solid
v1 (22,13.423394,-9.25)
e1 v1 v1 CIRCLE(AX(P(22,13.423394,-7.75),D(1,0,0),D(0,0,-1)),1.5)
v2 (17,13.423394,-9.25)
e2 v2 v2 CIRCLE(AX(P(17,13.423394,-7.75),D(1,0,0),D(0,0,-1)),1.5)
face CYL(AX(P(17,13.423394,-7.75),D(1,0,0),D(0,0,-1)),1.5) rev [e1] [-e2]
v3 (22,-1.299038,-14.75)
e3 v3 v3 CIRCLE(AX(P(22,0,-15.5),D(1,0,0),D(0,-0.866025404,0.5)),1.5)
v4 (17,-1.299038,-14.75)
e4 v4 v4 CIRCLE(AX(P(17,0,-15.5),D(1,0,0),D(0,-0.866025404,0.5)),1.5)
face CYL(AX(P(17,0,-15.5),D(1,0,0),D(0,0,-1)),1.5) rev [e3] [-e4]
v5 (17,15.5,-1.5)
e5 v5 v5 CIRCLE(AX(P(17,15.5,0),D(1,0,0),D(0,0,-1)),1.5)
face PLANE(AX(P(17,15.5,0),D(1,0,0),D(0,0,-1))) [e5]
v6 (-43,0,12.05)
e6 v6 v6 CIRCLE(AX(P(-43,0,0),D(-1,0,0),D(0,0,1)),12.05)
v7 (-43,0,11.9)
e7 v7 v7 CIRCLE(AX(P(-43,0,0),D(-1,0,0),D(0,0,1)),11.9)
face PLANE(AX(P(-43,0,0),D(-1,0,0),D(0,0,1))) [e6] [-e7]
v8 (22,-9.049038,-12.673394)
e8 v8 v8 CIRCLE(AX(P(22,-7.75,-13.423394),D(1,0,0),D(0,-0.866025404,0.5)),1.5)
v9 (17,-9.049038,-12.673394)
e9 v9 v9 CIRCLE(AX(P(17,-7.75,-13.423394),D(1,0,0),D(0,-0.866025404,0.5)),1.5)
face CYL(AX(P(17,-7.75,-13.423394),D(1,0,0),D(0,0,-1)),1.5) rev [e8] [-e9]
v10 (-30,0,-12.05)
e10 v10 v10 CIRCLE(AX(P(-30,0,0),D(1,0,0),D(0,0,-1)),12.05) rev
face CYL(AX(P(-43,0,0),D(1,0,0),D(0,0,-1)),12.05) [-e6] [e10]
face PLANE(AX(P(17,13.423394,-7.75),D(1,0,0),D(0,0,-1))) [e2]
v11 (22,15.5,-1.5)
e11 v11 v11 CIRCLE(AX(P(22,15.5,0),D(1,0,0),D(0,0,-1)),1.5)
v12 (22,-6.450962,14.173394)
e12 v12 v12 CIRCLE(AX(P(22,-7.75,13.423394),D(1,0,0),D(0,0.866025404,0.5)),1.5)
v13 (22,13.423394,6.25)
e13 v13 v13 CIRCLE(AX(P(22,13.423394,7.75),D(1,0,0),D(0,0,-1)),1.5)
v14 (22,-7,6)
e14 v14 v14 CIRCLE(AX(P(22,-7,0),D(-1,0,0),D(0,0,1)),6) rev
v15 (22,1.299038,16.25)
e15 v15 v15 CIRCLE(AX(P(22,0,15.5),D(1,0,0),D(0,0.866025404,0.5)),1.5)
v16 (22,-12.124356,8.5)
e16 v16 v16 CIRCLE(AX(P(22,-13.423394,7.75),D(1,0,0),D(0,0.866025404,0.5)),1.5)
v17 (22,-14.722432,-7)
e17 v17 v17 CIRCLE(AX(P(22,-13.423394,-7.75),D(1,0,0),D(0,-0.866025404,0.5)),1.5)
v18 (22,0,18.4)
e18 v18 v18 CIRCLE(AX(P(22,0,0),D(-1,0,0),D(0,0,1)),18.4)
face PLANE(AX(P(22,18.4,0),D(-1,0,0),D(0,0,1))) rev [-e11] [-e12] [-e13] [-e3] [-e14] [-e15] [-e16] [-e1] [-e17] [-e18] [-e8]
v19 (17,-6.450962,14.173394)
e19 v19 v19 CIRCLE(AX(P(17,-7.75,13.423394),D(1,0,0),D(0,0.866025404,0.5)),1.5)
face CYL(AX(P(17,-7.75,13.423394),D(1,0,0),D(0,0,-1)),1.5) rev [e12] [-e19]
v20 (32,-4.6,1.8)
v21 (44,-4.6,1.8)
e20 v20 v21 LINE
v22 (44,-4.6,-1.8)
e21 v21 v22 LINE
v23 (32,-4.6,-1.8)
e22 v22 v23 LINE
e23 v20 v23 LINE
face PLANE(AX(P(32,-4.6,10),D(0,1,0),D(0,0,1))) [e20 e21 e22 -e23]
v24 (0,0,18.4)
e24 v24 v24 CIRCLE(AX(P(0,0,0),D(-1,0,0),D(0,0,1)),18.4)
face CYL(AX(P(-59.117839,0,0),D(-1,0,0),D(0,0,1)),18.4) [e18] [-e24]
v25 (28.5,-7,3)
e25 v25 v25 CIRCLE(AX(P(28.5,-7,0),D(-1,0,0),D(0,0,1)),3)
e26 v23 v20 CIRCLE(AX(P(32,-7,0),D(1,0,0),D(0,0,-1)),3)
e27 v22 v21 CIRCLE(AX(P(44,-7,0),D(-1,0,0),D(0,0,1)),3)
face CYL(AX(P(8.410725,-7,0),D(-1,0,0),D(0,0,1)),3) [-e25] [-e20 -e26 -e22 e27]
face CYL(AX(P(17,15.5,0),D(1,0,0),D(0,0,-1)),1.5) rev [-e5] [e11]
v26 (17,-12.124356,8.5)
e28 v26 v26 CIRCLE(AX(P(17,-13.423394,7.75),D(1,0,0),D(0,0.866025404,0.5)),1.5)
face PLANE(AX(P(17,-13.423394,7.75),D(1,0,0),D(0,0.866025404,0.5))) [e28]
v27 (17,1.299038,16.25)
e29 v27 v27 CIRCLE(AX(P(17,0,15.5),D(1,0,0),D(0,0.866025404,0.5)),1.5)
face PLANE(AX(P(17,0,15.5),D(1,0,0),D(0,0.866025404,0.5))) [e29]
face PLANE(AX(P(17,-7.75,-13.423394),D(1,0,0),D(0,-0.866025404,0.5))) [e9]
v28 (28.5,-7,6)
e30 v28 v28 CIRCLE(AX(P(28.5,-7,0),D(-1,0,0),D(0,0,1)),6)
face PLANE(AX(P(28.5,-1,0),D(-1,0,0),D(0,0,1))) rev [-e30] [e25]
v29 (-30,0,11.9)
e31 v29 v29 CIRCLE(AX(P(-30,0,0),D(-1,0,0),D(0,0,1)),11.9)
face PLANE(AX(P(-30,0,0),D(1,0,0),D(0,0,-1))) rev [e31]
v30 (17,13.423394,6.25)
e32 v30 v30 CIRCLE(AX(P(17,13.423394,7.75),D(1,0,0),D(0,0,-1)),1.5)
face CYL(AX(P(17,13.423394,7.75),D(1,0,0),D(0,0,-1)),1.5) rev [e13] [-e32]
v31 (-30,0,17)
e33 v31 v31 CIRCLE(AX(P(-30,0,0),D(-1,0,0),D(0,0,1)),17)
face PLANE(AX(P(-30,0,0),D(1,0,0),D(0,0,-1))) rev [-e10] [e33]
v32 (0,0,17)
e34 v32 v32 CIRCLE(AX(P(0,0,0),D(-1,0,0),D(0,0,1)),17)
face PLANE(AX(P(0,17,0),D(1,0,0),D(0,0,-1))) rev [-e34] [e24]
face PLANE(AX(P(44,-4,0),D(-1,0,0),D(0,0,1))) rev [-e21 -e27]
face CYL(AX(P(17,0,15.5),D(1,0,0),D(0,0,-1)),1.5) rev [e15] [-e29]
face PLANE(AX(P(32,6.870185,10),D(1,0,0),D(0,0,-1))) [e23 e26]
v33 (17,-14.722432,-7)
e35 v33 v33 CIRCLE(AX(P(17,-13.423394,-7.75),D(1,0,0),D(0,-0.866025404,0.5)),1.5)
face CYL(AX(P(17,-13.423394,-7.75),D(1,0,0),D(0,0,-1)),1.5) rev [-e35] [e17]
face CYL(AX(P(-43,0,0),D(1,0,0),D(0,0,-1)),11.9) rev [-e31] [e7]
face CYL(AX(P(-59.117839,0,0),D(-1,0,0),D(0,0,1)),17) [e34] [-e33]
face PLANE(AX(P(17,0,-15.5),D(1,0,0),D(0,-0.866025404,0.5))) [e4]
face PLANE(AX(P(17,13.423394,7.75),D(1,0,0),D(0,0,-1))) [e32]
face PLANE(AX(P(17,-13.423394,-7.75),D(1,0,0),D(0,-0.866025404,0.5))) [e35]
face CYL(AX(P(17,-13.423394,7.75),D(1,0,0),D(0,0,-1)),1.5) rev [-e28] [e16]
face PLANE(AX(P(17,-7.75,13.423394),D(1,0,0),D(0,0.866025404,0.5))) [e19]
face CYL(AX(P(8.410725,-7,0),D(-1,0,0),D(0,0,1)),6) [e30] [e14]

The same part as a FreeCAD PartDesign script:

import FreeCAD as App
import Part
import Sketcher


def add_polygon(sketch, points):
    """Adds a closed chain of lines whose ends are joined by coincident constraints."""
    first, n = sketch.GeometryCount, len(points)
    for a, b in zip(points, points[1:] + points[:1]):
        sketch.addGeometry(Part.LineSegment(App.Vector(*a, 0), App.Vector(*b, 0)), False)
    for i in range(n):
        sketch.addConstraint(Sketcher.Constraint("Coincident", first + i, 2, first + (i + 1) % n, 1))

doc = App.newDocument("Part")
body = doc.addObject("PartDesign::Body", "Body")

# Sketch on XY plane
sketch1 = body.newObject("Sketcher::SketchObject", "Sketch")
sketch1.AttachmentSupport = (doc.getObject("XY_Plane"), [""])
sketch1.MapMode = "FlatFace"
add_polygon(sketch1, [(-30, 17), (-30, 0), (22, 0), (22, 18.4), (0, 18.4), (0, 17)])  # lines 0-5
sketch1.addConstraint([
    Sketcher.Constraint("Vertical", 0),
    Sketcher.Constraint("Horizontal", 1),
    Sketcher.Constraint("Vertical", 2),
    Sketcher.Constraint("Horizontal", 3),
    Sketcher.Constraint("Vertical", 4),
    Sketcher.Constraint("Horizontal", 5),
    Sketcher.Constraint("PointOnObject", 0, 2, -1),
    Sketcher.Constraint("PointOnObject", 3, 2, -2),
    Sketcher.Constraint("DistanceX", 1, 1, 1, 2, 52.0),
    Sketcher.Constraint("DistanceX", 3, 2, 3, 1, 22.0),
    Sketcher.Constraint("DistanceY", 0, 2, 0, 1, 17.0),
    Sketcher.Constraint("DistanceY", 2, 1, 2, 2, 18.4),
])
revolution = body.newObject("PartDesign::Revolution", "Revolution")
revolution.Profile = sketch1
revolution.ReferenceAxis = (sketch1, ["H_Axis"])
revolution.Angle = 360

# Sketch on XY plane
sketch2 = body.newObject("Sketcher::SketchObject", "Sketch001")
sketch2.AttachmentSupport = (doc.getObject("XY_Plane"), [""])
sketch2.MapMode = "FlatFace"
add_polygon(sketch2, [(28.5, -1), (22, -1), (22, -7), (44, -7), (44, -4), (28.5, -4)])  # lines 0-5
sketch2.addGeometry(Part.LineSegment(App.Vector(22, -7, 0), App.Vector(44, -7, 0)), True)  # axis
sketch2.addConstraint([
    Sketcher.Constraint("Horizontal", 0),
    Sketcher.Constraint("Vertical", 1),
    Sketcher.Constraint("Horizontal", 2),
    Sketcher.Constraint("Vertical", 3),
    Sketcher.Constraint("Horizontal", 4),
    Sketcher.Constraint("Vertical", 5),
    Sketcher.Constraint("Horizontal", 6),
    Sketcher.Constraint("Coincident", 6, 1, 1, 2),
    Sketcher.Constraint("Vertical", 3, 2, 6, 2),
    Sketcher.Constraint("Equal", 3, 5),
    Sketcher.Constraint("DistanceX", 2, 1, 2, 2, 22.0),
    Sketcher.Constraint("DistanceY", 1, 2, 1, 1, 6.0),
    Sketcher.Constraint("DistanceX", 0, 2, 0, 1, 6.5),
    Sketcher.Constraint("DistanceX", -1, 1, 0, 2, 22.0),
    Sketcher.Constraint("DistanceY", 0, 2, -1, 1, 1.0),
])
revolution2 = body.newObject("PartDesign::Revolution", "Revolution001")
revolution2.Profile = sketch2
revolution2.ReferenceAxis = (sketch2, ["Axis0"])
revolution2.Angle = 360

# Sketch on XY plane
sketch3 = body.newObject("Sketcher::SketchObject", "Sketch002")
sketch3.AttachmentSupport = (doc.getObject("XY_Plane"), [""])
sketch3.MapMode = "FlatFace"
add_polygon(sketch3, [(32, 7), (32, -5), (51, -5), (51, 7)])  # lines 0-3
sketch3.addConstraint([
    Sketcher.Constraint("Vertical", 0),
    Sketcher.Constraint("Horizontal", 1),
    Sketcher.Constraint("Vertical", 2),
    Sketcher.Constraint("Horizontal", 3),
    Sketcher.Constraint("DistanceX", -1, 1, 0, 2, 32.0),
    Sketcher.Constraint("DistanceY", 0, 2, -1, 1, 4.6),
    Sketcher.Constraint("DistanceX", 1, 1, 1, 2, 18.656759),
    Sketcher.Constraint("DistanceY", 0, 2, 0, 1, 11.470185),
])
pocket1 = body.newObject("PartDesign::Pocket", "Pocket")
pocket1.Profile = sketch3
pocket1.Type = "ThroughAll"
pocket1.Midplane = True

# Sketch on YZ plane
sketch4 = body.newObject("Sketcher::SketchObject", "Sketch003")
sketch4.AttachmentSupport = (doc.getObject("YZ_Plane"), [""])
sketch4.MapMode = "FlatFace"
sketch4.AttachmentOffset = App.Placement(App.Vector(0, 0, -30), App.Rotation())
sketch4.addGeometry([
    Part.Circle(App.Vector(0, 0, 0), App.Vector(0, 0, 1), 12),
    Part.Circle(App.Vector(0, 0, 0), App.Vector(0, 0, 1), 12),
], False)
sketch4.addConstraint([
    Sketcher.Constraint("Coincident", 0, 3, -1, 1),
    Sketcher.Constraint("Coincident", 1, 3, -1, 1),
    Sketcher.Constraint("Diameter", 0, 24.1),
    Sketcher.Constraint("Diameter", 1, 23.8),
])
pad1 = body.newObject("PartDesign::Pad", "Pad")
pad1.Profile = sketch4
pad1.Length = 13
pad1.Reversed = True

# Sketch on YZ plane
sketch5 = body.newObject("Sketcher::SketchObject", "Sketch004")
sketch5.AttachmentSupport = (doc.getObject("YZ_Plane"), [""])
sketch5.MapMode = "FlatFace"
sketch5.AttachmentOffset = App.Placement(App.Vector(0, 0, 22), App.Rotation())
sketch5.addGeometry([
    Part.Circle(App.Vector(15.5, 0, 0), App.Vector(0, 0, 1), 1.5),
    Part.Circle(App.Vector(13.4, -7.8, 0), App.Vector(0, 0, 1), 1.5),
    Part.Circle(App.Vector(13.4, 7.8, 0), App.Vector(0, 0, 1), 1.5),
], False)
sketch5.addConstraint([
    Sketcher.Constraint("Equal", 0, 1),
    Sketcher.Constraint("Equal", 1, 2),
    Sketcher.Constraint("Symmetric", 1, 3, 2, 3, -1),
    Sketcher.Constraint("PointOnObject", 0, 3, -1),
    Sketcher.Constraint("Diameter", 0, 3.0),
    Sketcher.Constraint("DistanceX", -1, 1, 0, 3, 15.5),
    Sketcher.Constraint("DistanceY", 1, 3, 2, 3, 15.5),
    Sketcher.Constraint("DistanceX", -1, 1, 1, 3, 13.423394),
])
pocket2 = body.newObject("PartDesign::Pocket", "Pocket001")
pocket2.Profile = sketch5
pocket2.Length = 5
doc.recompute()

polarpattern = body.newObject("PartDesign::PolarPattern", "PolarPattern")
polarpattern.Originals = [pocket2]
polarpattern.Axis = (doc.getObject("X_Axis"), [""])
polarpattern.Angle = 360
polarpattern.Occurrences = 3
body.Tip = polarpattern

doc.recompute()
